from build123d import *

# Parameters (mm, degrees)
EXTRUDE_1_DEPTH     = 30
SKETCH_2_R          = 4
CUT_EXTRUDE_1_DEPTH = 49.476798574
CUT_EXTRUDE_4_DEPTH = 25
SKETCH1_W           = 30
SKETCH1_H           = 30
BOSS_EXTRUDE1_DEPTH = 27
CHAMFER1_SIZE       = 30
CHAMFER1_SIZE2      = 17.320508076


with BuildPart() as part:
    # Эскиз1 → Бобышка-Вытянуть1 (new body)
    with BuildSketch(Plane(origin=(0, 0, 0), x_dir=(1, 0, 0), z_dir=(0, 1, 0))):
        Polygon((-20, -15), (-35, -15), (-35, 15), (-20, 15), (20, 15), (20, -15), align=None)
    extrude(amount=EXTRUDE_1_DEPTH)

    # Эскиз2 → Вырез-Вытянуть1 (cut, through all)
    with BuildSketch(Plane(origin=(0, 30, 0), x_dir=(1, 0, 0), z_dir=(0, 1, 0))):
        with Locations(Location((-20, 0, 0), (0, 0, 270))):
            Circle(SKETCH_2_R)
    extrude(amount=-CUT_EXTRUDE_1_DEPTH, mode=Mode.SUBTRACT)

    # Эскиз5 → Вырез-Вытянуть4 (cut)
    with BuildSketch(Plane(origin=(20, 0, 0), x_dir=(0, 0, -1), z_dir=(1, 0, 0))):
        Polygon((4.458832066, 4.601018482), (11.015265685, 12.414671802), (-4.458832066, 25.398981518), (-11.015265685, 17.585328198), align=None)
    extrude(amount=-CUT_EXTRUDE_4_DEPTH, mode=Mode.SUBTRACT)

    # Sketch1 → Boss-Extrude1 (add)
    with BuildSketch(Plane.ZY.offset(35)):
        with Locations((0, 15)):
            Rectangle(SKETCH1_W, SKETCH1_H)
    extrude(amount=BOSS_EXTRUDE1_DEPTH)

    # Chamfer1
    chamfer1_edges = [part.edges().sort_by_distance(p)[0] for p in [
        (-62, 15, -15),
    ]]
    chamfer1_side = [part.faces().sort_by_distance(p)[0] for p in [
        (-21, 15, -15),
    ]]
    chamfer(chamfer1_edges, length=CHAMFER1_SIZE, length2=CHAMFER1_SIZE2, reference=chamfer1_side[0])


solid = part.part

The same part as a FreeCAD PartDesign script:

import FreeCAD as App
import Part
import Sketcher

V = App.Vector
Q = App.Units.Quantity


def edges_at(feature, points):
    """Names of the edges that pass closest to the given points."""
    edges = feature.Shape.Edges
    near = lambda p: min(range(len(edges)), key=lambda i: edges[i].distToShape(Part.Vertex(*p))[0])
    return sorted({f"Edge{near(p) + 1}" for p in points})

doc = App.newDocument("Part")
params = doc.addObject("Spreadsheet::Sheet", "Params")
for row, (alias, value) in enumerate([
    ("sketch1_width", "55 mm"),
    ("sketch1_height", "30 mm"),
    ("pad1_length", "30 mm"),
    ("sketch2_diameter", "8 mm"),
    ("sketch3_length", "10.2 mm"),
    ("sketch3_length2", "20.2 mm"),
    ("pocket2_length", "25 mm"),
    ("sketch4_width", "30 mm"),
    ("pad2_length", "27 mm"),
    ("chamfer_size", "30 mm"),
    ("chamfer_size2", "17.320508 mm"),
], start=1):
    params.set(f"A{row}", alias)
    params.set(f"B{row}", "=" + value)
    params.setAlias(f"B{row}", alias)

body = doc.addObject("PartDesign::Body", "Body")

sketch1 = doc.addObject("Sketcher::SketchObject", "Sketch")
body.addObject(sketch1)
sketch1.AttachmentSupport = (doc.XZ_Plane, [""])
sketch1.MapMode = "FlatFace"
sketch1.addGeometry([
    Part.LineSegment(V(-35, 15, 0), V(20, 15, 0)),
    Part.LineSegment(V(20, 15, 0), V(20, -15, 0)),
    Part.LineSegment(V(20, -15, 0), V(-35, -15, 0)),
    Part.LineSegment(V(-35, -15, 0), V(-35, 15, 0)),
], False)
sketch1.addConstraint([
    Sketcher.Constraint("Coincident", 0, 2, 1, 1),
    Sketcher.Constraint("Coincident", 1, 2, 2, 1),
    Sketcher.Constraint("Coincident", 2, 2, 3, 1),
    Sketcher.Constraint("Coincident", 3, 2, 0, 1),
    Sketcher.Constraint("Horizontal", 0),
    Sketcher.Constraint("Vertical", 1),
    Sketcher.Constraint("Horizontal", 2),
    Sketcher.Constraint("Vertical", 3),
    Sketcher.Constraint("DistanceX", 0, 1, 0, 2, 55.0),
    Sketcher.Constraint("DistanceY", 1, 2, 1, 1, 30.0),
    Sketcher.Constraint("DistanceX", -1, 1, 0, 2, 20.0),
    Sketcher.Constraint("DistanceY", -1, 1, 0, 2, 15.0),
])
sketch1.setExpression("Constraints[8]", "Params.sketch1_width")
sketch1.setExpression("Constraints[9]", "Params.sketch1_height")
pad1 = doc.addObject("PartDesign::Pad", "Pad")
body.addObject(pad1)
pad1.Profile = sketch1
pad1.setExpression("Length", "Params.pad1_length")
pad1.Reversed = True

sketch2 = doc.addObject("Sketcher::SketchObject", "Sketch001")
body.addObject(sketch2)
sketch2.AttachmentSupport = (doc.XZ_Plane, [""])
sketch2.MapMode = "FlatFace"
sketch2.AttachmentOffset = App.Placement(V(0, 0, -30), App.Rotation())
sketch2.addGeometry(Part.Circle(V(-20, 0, 0), V(0, 0, 1), 4), False)
sketch2.addConstraint([
    Sketcher.Constraint("PointOnObject", 0, 3, -1),
    Sketcher.Constraint("Diameter", 0, 8.0),
    Sketcher.Constraint("DistanceX", 0, 3, -1, 1, 20.0),
])
sketch2.setExpression("Constraints[1]", "Params.sketch2_diameter")
pocket1 = doc.addObject("PartDesign::Pocket", "Pocket")
body.addObject(pocket1)
pocket1.Profile = sketch2
pocket1.Type = "ThroughAll"
pocket1.Reversed = True

sketch3 = doc.addObject("Sketcher::SketchObject", "Sketch002")
body.addObject(sketch3)
sketch3.AttachmentSupport = (doc.YZ_Plane, [""])
sketch3.MapMode = "FlatFace"
sketch3.AttachmentOffset = App.Placement(V(0, 0, 20), App.Rotation())
sketch3.addGeometry([
    Part.LineSegment(V(4.601018, -4.458832, 0), V(12.414672, -11.015266, 0)),
    Part.LineSegment(V(12.414672, -11.015266, 0), V(25.398982, 4.458832, 0)),
    Part.LineSegment(V(25.398982, 4.458832, 0), V(17.585328, 11.015266, 0)),
    Part.LineSegment(V(17.585328, 11.015266, 0), V(4.601018, -4.458832, 0)),
], False)
sketch3.addConstraint([
    Sketcher.Constraint("Coincident", 0, 2, 1, 1),
    Sketcher.Constraint("Coincident", 1, 2, 2, 1),
    Sketcher.Constraint("Coincident", 2, 2, 3, 1),
    Sketcher.Constraint("Coincident", 3, 2, 0, 1),
    Sketcher.Constraint("Perpendicular", 0, 1),
    Sketcher.Constraint("Perpendicular", 1, 2),
    Sketcher.Constraint("Perpendicular", 2, 3),
    Sketcher.Constraint("Angle", 0, Q("-40 deg")),
    Sketcher.Constraint("Distance", 0, 10.2),
    Sketcher.Constraint("Distance", 1, 20.2),
    Sketcher.Constraint("DistanceX", -1, 1, 0, 2, 12.414672),
    Sketcher.Constraint("DistanceY", 0, 2, -1, 1, 11.015266),
])
sketch3.setExpression("Constraints[8]", "Params.sketch3_length")
sketch3.setExpression("Constraints[9]", "Params.sketch3_length2")
pocket2 = doc.addObject("PartDesign::Pocket", "Pocket001")
body.addObject(pocket2)
pocket2.Profile = sketch3
pocket2.setExpression("Length", "Params.pocket2_length")

sketch4 = doc.addObject("Sketcher::SketchObject", "Sketch003")
body.addObject(sketch4)
sketch4.AttachmentSupport = (doc.YZ_Plane, [""])
sketch4.MapMode = "FlatFace"
sketch4.AttachmentOffset = App.Placement(V(0, 0, -35), App.Rotation())
sketch4.addGeometry([
    Part.LineSegment(V(30, -15, 0), V(0, -15, 0)),
    Part.LineSegment(V(0, -15, 0), V(0, 15, 0)),
    Part.LineSegment(V(0, 15, 0), V(30, 15, 0)),
    Part.LineSegment(V(30, 15, 0), V(30, -15, 0)),
], False)
sketch4.addConstraint([
    Sketcher.Constraint("Coincident", 0, 2, 1, 1),
    Sketcher.Constraint("Coincident", 1, 2, 2, 1),
    Sketcher.Constraint("Coincident", 2, 2, 3, 1),
    Sketcher.Constraint("Coincident", 3, 2, 0, 1),
    Sketcher.Constraint("Horizontal", 0),
    Sketcher.Constraint("Vertical", 1),
    Sketcher.Constraint("Horizontal", 2),
    Sketcher.Constraint("Vertical", 3),
    Sketcher.Constraint("Symmetric", 0, 2, 1, 2, -1, 1),
    Sketcher.Constraint("Equal", 2, 1),
    Sketcher.Constraint("DistanceX", 0, 2, 0, 1, 30.0),
])
sketch4.setExpression("Constraints[10]", "Params.sketch4_width")
pad2 = doc.addObject("PartDesign::Pad", "Pad001")
body.addObject(pad2)
pad2.Profile = sketch4
pad2.setExpression("Length", "Params.pad2_length")
pad2.Reversed = True
doc.recompute()

chamfer = doc.addObject("PartDesign::Chamfer", "Chamfer")
body.addObject(chamfer)
chamfer.Base = (pad2, edges_at(pad2, [(-62, 15, -15)]))
chamfer.ChamferType = "Two distances"
chamfer.setExpression("Size", "Params.chamfer_size")
chamfer.setExpression("Size2", "Params.chamfer_size2")
chamfer.FlipDirection = True

doc.recompute()
